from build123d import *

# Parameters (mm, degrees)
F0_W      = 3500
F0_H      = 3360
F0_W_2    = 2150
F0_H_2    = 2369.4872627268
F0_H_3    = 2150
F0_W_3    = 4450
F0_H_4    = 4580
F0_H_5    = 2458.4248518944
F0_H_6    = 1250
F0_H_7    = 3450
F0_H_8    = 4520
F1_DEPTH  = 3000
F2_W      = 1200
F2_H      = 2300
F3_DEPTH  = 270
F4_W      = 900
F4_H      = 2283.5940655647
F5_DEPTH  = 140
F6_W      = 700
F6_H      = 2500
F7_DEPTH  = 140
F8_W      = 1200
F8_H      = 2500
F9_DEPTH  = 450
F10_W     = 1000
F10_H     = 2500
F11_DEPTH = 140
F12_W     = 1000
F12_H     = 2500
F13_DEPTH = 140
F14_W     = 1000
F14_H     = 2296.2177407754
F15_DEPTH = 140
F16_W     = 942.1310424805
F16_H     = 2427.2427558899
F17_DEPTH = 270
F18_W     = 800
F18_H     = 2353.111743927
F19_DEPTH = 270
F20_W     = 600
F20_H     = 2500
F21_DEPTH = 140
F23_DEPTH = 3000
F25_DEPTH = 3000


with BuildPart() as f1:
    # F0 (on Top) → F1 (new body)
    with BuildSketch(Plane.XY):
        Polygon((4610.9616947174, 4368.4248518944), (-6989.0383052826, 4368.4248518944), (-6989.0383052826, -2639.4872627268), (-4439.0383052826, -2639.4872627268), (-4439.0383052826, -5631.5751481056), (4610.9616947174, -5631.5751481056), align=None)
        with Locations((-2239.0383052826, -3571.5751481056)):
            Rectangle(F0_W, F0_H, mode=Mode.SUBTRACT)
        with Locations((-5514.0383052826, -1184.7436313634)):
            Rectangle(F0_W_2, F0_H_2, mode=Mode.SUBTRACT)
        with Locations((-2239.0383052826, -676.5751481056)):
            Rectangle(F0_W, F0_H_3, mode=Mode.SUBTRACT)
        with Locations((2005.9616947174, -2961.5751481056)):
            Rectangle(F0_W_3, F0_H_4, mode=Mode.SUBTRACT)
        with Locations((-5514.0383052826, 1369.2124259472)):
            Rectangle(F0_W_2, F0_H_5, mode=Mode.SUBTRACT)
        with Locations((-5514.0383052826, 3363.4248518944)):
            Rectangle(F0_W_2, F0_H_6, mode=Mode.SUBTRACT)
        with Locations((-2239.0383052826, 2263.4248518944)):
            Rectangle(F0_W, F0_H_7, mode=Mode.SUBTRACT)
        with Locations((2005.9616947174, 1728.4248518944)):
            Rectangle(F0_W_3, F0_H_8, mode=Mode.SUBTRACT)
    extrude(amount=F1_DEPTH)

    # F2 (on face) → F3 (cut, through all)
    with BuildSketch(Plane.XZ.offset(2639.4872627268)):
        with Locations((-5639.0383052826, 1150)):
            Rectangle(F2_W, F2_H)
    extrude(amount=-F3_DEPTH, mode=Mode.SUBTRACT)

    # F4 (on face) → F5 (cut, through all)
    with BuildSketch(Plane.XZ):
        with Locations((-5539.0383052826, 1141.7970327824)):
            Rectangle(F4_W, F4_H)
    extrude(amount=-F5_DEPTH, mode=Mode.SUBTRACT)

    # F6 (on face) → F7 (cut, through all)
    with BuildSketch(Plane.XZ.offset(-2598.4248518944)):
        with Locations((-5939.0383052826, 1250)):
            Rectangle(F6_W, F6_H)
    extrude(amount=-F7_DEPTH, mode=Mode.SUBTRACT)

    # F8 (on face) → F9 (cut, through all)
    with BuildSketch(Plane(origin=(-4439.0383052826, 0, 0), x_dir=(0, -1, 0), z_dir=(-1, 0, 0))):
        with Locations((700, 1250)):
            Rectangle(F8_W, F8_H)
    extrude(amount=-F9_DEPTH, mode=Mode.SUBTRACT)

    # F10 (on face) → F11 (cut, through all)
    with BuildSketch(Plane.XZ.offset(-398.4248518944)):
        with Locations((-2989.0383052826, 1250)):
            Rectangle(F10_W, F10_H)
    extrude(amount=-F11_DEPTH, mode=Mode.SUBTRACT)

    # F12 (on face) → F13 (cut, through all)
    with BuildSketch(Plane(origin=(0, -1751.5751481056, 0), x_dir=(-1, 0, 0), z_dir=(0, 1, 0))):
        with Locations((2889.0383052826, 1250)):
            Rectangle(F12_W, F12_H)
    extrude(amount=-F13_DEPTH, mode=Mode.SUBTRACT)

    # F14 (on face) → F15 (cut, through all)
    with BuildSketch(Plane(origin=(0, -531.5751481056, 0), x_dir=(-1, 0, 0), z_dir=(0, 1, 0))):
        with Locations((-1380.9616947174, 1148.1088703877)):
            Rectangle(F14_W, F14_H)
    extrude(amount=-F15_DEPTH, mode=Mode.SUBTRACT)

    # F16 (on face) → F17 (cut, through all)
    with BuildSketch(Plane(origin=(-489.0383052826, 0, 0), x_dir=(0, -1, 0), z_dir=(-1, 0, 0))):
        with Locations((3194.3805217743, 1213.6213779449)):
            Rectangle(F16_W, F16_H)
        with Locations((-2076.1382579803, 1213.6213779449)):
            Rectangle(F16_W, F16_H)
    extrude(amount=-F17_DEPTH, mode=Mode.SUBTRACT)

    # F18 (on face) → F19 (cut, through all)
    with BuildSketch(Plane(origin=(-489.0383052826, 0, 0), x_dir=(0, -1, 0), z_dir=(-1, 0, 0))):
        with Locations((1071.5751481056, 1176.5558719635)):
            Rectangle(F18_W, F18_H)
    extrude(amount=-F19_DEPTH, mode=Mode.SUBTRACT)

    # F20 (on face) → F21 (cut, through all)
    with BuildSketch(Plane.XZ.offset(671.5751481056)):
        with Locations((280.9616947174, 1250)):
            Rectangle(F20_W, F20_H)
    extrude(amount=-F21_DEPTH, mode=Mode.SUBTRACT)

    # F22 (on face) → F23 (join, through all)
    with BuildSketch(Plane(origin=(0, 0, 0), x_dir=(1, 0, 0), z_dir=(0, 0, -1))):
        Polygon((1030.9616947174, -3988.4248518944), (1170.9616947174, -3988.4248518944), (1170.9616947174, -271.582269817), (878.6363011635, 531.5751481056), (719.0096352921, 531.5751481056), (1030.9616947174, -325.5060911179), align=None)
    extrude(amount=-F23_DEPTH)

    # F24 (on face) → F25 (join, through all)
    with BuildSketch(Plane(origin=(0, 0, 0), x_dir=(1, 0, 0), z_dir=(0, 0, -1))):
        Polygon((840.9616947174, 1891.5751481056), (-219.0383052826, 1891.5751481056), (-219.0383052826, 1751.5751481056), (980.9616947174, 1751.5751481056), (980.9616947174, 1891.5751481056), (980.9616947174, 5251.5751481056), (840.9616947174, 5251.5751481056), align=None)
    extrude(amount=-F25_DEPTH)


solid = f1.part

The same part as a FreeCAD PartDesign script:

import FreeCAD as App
import Part
import Sketcher
from FreeCAD import Vector
Q = App.Units.Quantity

doc = App.newDocument("Part")
body = doc.addObject("PartDesign::Body", "Body")

# Sketch on XY plane
sketch1 = body.newObject("Sketcher::SketchObject", "Sketch")
sketch1.AttachmentSupport = (doc.getObject("XY_Plane"), [""])
sketch1.MapMode = "FlatFace"
sketch1.addGeometry(Part.LineSegment(Vector(4610.961695, 4368.424852, 0), Vector(-6989.038305, 4368.424852, 0)), False)
sketch1.addGeometry(Part.LineSegment(Vector(-6989.038305, 4368.424852, 0), Vector(-6989.038305, -2639.487263, 0)), False)
sketch1.addGeometry(Part.LineSegment(Vector(-6989.038305, -2639.487263, 0), Vector(-4439.038305, -2639.487263, 0)), False)
sketch1.addGeometry(Part.LineSegment(Vector(-4439.038305, -2639.487263, 0), Vector(-4439.038305, -5631.575148, 0)), False)
sketch1.addGeometry(Part.LineSegment(Vector(-4439.038305, -5631.575148, 0), Vector(4610.961695, -5631.575148, 0)), False)
sketch1.addGeometry(Part.LineSegment(Vector(4610.961695, -5631.575148, 0), Vector(4610.961695, 4368.424852, 0)), False)
sketch1.addGeometry(Part.LineSegment(Vector(-489.038305, -5251.575148, 0), Vector(-3989.038305, -5251.575148, 0)), False)
sketch1.addGeometry(Part.LineSegment(Vector(-3989.038305, -5251.575148, 0), Vector(-3989.038305, -1891.575148, 0)), False)
sketch1.addGeometry(Part.LineSegment(Vector(-3989.038305, -1891.575148, 0), Vector(-489.038305, -1891.575148, 0)), False)
sketch1.addGeometry(Part.LineSegment(Vector(-489.038305, -1891.575148, 0), Vector(-489.038305, -5251.575148, 0)), False)
sketch1.addGeometry(Part.LineSegment(Vector(-4439.038305, -2369.487263, 0), Vector(-6589.038305, -2369.487263, 0)), False)
sketch1.addGeometry(Part.LineSegment(Vector(-6589.038305, -2369.487263, 0), Vector(-6589.038305, 0, 0)), False)
sketch1.addGeometry(Part.LineSegment(Vector(-6589.038305, 0, 0), Vector(-4439.038305, 0, 0)), False)
sketch1.addGeometry(Part.LineSegment(Vector(-4439.038305, 0, 0), Vector(-4439.038305, -2369.487263, 0)), False)
sketch1.addGeometry(Part.LineSegment(Vector(-489.038305, -1751.575148, 0), Vector(-3989.038305, -1751.575148, 0)), False)
sketch1.addGeometry(Part.LineSegment(Vector(-3989.038305, -1751.575148, 0), Vector(-3989.038305, 398.424852, 0)), False)
sketch1.addGeometry(Part.LineSegment(Vector(-3989.038305, 398.424852, 0), Vector(-489.038305, 398.424852, 0)), False)
sketch1.addGeometry(Part.LineSegment(Vector(-489.038305, 398.424852, 0), Vector(-489.038305, -1751.575148, 0)), False)
sketch1.addGeometry(Part.LineSegment(Vector(4230.961695, -5251.575148, 0), Vector(-219.038305, -5251.575148, 0)), False)
sketch1.addGeometry(Part.LineSegment(Vector(-219.038305, -5251.575148, 0), Vector(-219.038305, -671.575148, 0)), False)
sketch1.addGeometry(Part.LineSegment(Vector(-219.038305, -671.575148, 0), Vector(4230.961695, -671.575148, 0)), False)
sketch1.addGeometry(Part.LineSegment(Vector(4230.961695, -671.575148, 0), Vector(4230.961695, -5251.575148, 0)), False)
sketch1.addGeometry(Part.LineSegment(Vector(-4439.038305, 140, 0), Vector(-6589.038305, 140, 0)), False)
sketch1.addGeometry(Part.LineSegment(Vector(-6589.038305, 140, 0), Vector(-6589.038305, 2598.424852, 0)), False)
sketch1.addGeometry(Part.LineSegment(Vector(-6589.038305, 2598.424852, 0), Vector(-4439.038305, 2598.424852, 0)), False)
sketch1.addGeometry(Part.LineSegment(Vector(-4439.038305, 2598.424852, 0), Vector(-4439.038305, 140, 0)), False)
sketch1.addGeometry(Part.LineSegment(Vector(-4439.038305, 2738.424852, 0), Vector(-6589.038305, 2738.424852, 0)), False)
sketch1.addGeometry(Part.LineSegment(Vector(-6589.038305, 2738.424852, 0), Vector(-6589.038305, 3988.424852, 0)), False)
sketch1.addGeometry(Part.LineSegment(Vector(-6589.038305, 3988.424852, 0), Vector(-4439.038305, 3988.424852, 0)), False)
sketch1.addGeometry(Part.LineSegment(Vector(-4439.038305, 3988.424852, 0), Vector(-4439.038305, 2738.424852, 0)), False)
sketch1.addGeometry(Part.LineSegment(Vector(-489.038305, 538.424852, 0), Vector(-3989.038305, 538.424852, 0)), False)
sketch1.addGeometry(Part.LineSegment(Vector(-3989.038305, 538.424852, 0), Vector(-3989.038305, 3988.424852, 0)), False)
sketch1.addGeometry(Part.LineSegment(Vector(-3989.038305, 3988.424852, 0), Vector(-489.038305, 3988.424852, 0)), False)
sketch1.addGeometry(Part.LineSegment(Vector(-489.038305, 3988.424852, 0), Vector(-489.038305, 538.424852, 0)), False)
sketch1.addGeometry(Part.LineSegment(Vector(4230.961695, -531.575148, 0), Vector(-219.038305, -531.575148, 0)), False)
sketch1.addGeometry(Part.LineSegment(Vector(-219.038305, -531.575148, 0), Vector(-219.038305, 3988.424852, 0)), False)
sketch1.addGeometry(Part.LineSegment(Vector(-219.038305, 3988.424852, 0), Vector(4230.961695, 3988.424852, 0)), False)
sketch1.addGeometry(Part.LineSegment(Vector(4230.961695, 3988.424852, 0), Vector(4230.961695, -531.575148, 0)), False)
sketch1.addConstraint(Sketcher.Constraint("Coincident", 0, 2, 1, 1))
sketch1.addConstraint(Sketcher.Constraint("Coincident", 1, 2, 2, 1))
sketch1.addConstraint(Sketcher.Constraint("Coincident", 2, 2, 3, 1))
sketch1.addConstraint(Sketcher.Constraint("Coincident", 3, 2, 4, 1))
sketch1.addConstraint(Sketcher.Constraint("Coincident", 4, 2, 5, 1))
sketch1.addConstraint(Sketcher.Constraint("Coincident", 5, 2, 0, 1))
sketch1.addConstraint(Sketcher.Constraint("Coincident", 6, 2, 7, 1))
sketch1.addConstraint(Sketcher.Constraint("Coincident", 7, 2, 8, 1))
sketch1.addConstraint(Sketcher.Constraint("Coincident", 8, 2, 9, 1))
sketch1.addConstraint(Sketcher.Constraint("Coincident", 9, 2, 6, 1))
sketch1.addConstraint(Sketcher.Constraint("Coincident", 10, 2, 11, 1))
sketch1.addConstraint(Sketcher.Constraint("Coincident", 11, 2, 12, 1))
sketch1.addConstraint(Sketcher.Constraint("Coincident", 12, 2, 13, 1))
sketch1.addConstraint(Sketcher.Constraint("Coincident", 13, 2, 10, 1))
sketch1.addConstraint(Sketcher.Constraint("Coincident", 14, 2, 15, 1))
sketch1.addConstraint(Sketcher.Constraint("Coincident", 15, 2, 16, 1))
sketch1.addConstraint(Sketcher.Constraint("Coincident", 16, 2, 17, 1))
sketch1.addConstraint(Sketcher.Constraint("Coincident", 17, 2, 14, 1))
sketch1.addConstraint(Sketcher.Constraint("Coincident", 18, 2, 19, 1))
sketch1.addConstraint(Sketcher.Constraint("Coincident", 19, 2, 20, 1))
sketch1.addConstraint(Sketcher.Constraint("Coincident", 20, 2, 21, 1))
sketch1.addConstraint(Sketcher.Constraint("Coincident", 21, 2, 18, 1))
sketch1.addConstraint(Sketcher.Constraint("Coincident", 22, 2, 23, 1))
sketch1.addConstraint(Sketcher.Constraint("Coincident", 23, 2, 24, 1))
sketch1.addConstraint(Sketcher.Constraint("Coincident", 24, 2, 25, 1))
sketch1.addConstraint(Sketcher.Constraint("Coincident", 25, 2, 22, 1))
sketch1.addConstraint(Sketcher.Constraint("Coincident", 26, 2, 27, 1))
sketch1.addConstraint(Sketcher.Constraint("Coincident", 27, 2, 28, 1))
sketch1.addConstraint(Sketcher.Constraint("Coincident", 28, 2, 29, 1))
sketch1.addConstraint(Sketcher.Constraint("Coincident", 29, 2, 26, 1))
sketch1.addConstraint(Sketcher.Constraint("Coincident", 30, 2, 31, 1))
sketch1.addConstraint(Sketcher.Constraint("Coincident", 31, 2, 32, 1))
sketch1.addConstraint(Sketcher.Constraint("Coincident", 32, 2, 33, 1))
sketch1.addConstraint(Sketcher.Constraint("Coincident", 33, 2, 30, 1))
sketch1.addConstraint(Sketcher.Constraint("Coincident", 34, 2, 35, 1))
sketch1.addConstraint(Sketcher.Constraint("Coincident", 35, 2, 36, 1))
sketch1.addConstraint(Sketcher.Constraint("Coincident", 36, 2, 37, 1))
sketch1.addConstraint(Sketcher.Constraint("Coincident", 37, 2, 34, 1))
sketch1.addConstraint(Sketcher.Constraint("Horizontal", 0))
sketch1.addConstraint(Sketcher.Constraint("Vertical", 1))
sketch1.addConstraint(Sketcher.Constraint("Horizontal", 2))
sketch1.addConstraint(Sketcher.Constraint("Vertical", 3))
sketch1.addConstraint(Sketcher.Constraint("Horizontal", 4))
sketch1.addConstraint(Sketcher.Constraint("Vertical", 5))
sketch1.addConstraint(Sketcher.Constraint("Horizontal", 6))
sketch1.addConstraint(Sketcher.Constraint("Vertical", 7))
sketch1.addConstraint(Sketcher.Constraint("Horizontal", 8))
sketch1.addConstraint(Sketcher.Constraint("Vertical", 9))
sketch1.addConstraint(Sketcher.Constraint("Horizontal", 10))
sketch1.addConstraint(Sketcher.Constraint("Vertical", 11))
sketch1.addConstraint(Sketcher.Constraint("Horizontal", 12))
sketch1.addConstraint(Sketcher.Constraint("Vertical", 13))
sketch1.addConstraint(Sketcher.Constraint("Horizontal", 14))
sketch1.addConstraint(Sketcher.Constraint("Vertical", 15))
sketch1.addConstraint(Sketcher.Constraint("Horizontal", 16))
sketch1.addConstraint(Sketcher.Constraint("Vertical", 17))
sketch1.addConstraint(Sketcher.Constraint("Horizontal", 18))
sketch1.addConstraint(Sketcher.Constraint("Vertical", 19))
sketch1.addConstraint(Sketcher.Constraint("Horizontal", 20))
sketch1.addConstraint(Sketcher.Constraint("Vertical", 21))
sketch1.addConstraint(Sketcher.Constraint("Horizontal", 22))
sketch1.addConstraint(Sketcher.Constraint("Vertical", 23))
sketch1.addConstraint(Sketcher.Constraint("Horizontal", 24))
sketch1.addConstraint(Sketcher.Constraint("Vertical", 25))
sketch1.addConstraint(Sketcher.Constraint("Horizontal", 26))
sketch1.addConstraint(Sketcher.Constraint("Vertical", 27))
sketch1.addConstraint(Sketcher.Constraint("Horizontal", 28))
sketch1.addConstraint(Sketcher.Constraint("Vertical", 29))
sketch1.addConstraint(Sketcher.Constraint("Horizontal", 30))
sketch1.addConstraint(Sketcher.Constraint("Vertical", 31))
sketch1.addConstraint(Sketcher.Constraint("Horizontal", 32))
sketch1.addConstraint(Sketcher.Constraint("Vertical", 33))
sketch1.addConstraint(Sketcher.Constraint("Horizontal", 34))
sketch1.addConstraint(Sketcher.Constraint("Vertical", 35))
sketch1.addConstraint(Sketcher.Constraint("Horizontal", 36))
sketch1.addConstraint(Sketcher.Constraint("Vertical", 37))
sketch1.addConstraint(Sketcher.Constraint("PointOnObject", 11, 2, -1))
sketch1.addConstraint(Sketcher.Constraint("Horizontal", 9, 2, 18, 2))
sketch1.addConstraint(Sketcher.Constraint("Horizontal", 28, 2, 31, 2))
sketch1.addConstraint(Sketcher.Constraint("Horizontal", 32, 2, 35, 2))
sketch1.addConstraint(Sketcher.Constraint("Vertical", 3, 2, 12, 2))
sketch1.addConstraint(Sketcher.Constraint("Vertical", 7, 2, 14, 2))
sketch1.addConstraint(Sketcher.Constraint("Vertical", 9, 2, 16, 2))
sketch1.addConstraint(Sketcher.Constraint("Vertical", 11, 2, 22, 2))
sketch1.addConstraint(Sketcher.Constraint("Vertical", 13, 2, 24, 2))
sketch1.addConstraint(Sketcher.Constraint("Vertical", 23, 2, 26, 2))
sketch1.addConstraint(Sketcher.Constraint("Vertical", 25, 2, 28, 2))
sketch1.addConstraint(Sketcher.Constraint("Vertical", 15, 2, 30, 2))
sketch1.addConstraint(Sketcher.Constraint("Vertical", 17, 2, 32, 2))
sketch1.addConstraint(Sketcher.Constraint("Vertical", 19, 2, 34, 2))
sketch1.addConstraint(Sketcher.Constraint("Vertical", 21, 2, 36, 2))
sketch1.addConstraint(Sketcher.Constraint("Equal", 28, 15))
sketch1.addConstraint(Sketcher.Constraint("DistanceX", 0, 2, 0, 1, 11600.0))
sketch1.addConstraint(Sketcher.Constraint("DistanceX", 2, 1, 2, 2, 2550.0))
sketch1.addConstraint(Sketcher.Constraint("DistanceX", 6, 2, 6, 1, 3500.0))
sketch1.addConstraint(Sketcher.Constraint("DistanceX", 10, 2, 10, 1, 2150.0))
sketch1.addConstraint(Sketcher.Constraint("DistanceX", 18, 2, 18, 1, 4450.0))
sketch1.addConstraint(Sketcher.Constraint("DistanceY", 5, 1, 5, 2, 10000.0))
sketch1.addConstraint(Sketcher.Constraint("DistanceY", 7, 1, 7, 2, 3360.0))
sketch1.addConstraint(Sketcher.Constraint("DistanceY", 19, 1, 19, 2, 4580.0))
sketch1.addConstraint(Sketcher.Constraint("DistanceY", 27, 1, 27, 2, 1250.0))
sketch1.addConstraint(Sketcher.Constraint("DistanceY", 31, 1, 31, 2, 3450.0))
sketch1.addConstraint(Sketcher.Constraint("DistanceY", 35, 1, 35, 2, 4520.0))
sketch1.addConstraint(Sketcher.Constraint("DistanceY", -1, 1, 22, 2, 140.0))
sketch1.addConstraint(Sketcher.Constraint("DistanceX", 3, 2, 6, 2, 450.0))
sketch1.addConstraint(Sketcher.Constraint("DistanceY", 3, 2, 6, 2, 380.0))
sketch1.addConstraint(Sketcher.Constraint("DistanceY", 1, 2, 10, 2, 270.0))
sketch1.addConstraint(Sketcher.Constraint("DistanceY", 7, 2, 14, 2, 140.0))
sketch1.addConstraint(Sketcher.Constraint("DistanceX", 9, 2, 18, 2, 270.0))
sketch1.addConstraint(Sketcher.Constraint("DistanceY", 23, 2, 0, 2, 1770.0))
sketch1.addConstraint(Sketcher.Constraint("DistanceY", 23, 2, 26, 2, 140.0))
sketch1.addConstraint(Sketcher.Constraint("DistanceY", 23, 1, 23, 2, 2458.424852))
sketch1.addConstraint(Sketcher.Constraint("DistanceY", 1, 2, 1, 1, 7007.912115))
sketch1.addConstraint(Sketcher.Constraint("DistanceX", 0, 2, -1, 1, 6989.038305))
pad1 = body.newObject("PartDesign::Pad", "Pad")
pad1.Profile = sketch1
pad1.Length = 3000

# Sketch on XZ plane
sketch2 = body.newObject("Sketcher::SketchObject", "Sketch001")
sketch2.AttachmentSupport = (doc.getObject("XZ_Plane"), [""])
sketch2.MapMode = "FlatFace"
sketch2.AttachmentOffset = App.Placement(Vector(0, 0, 2639.487263), App.Rotation())
sketch2.addGeometry(Part.LineSegment(Vector(-6239.038305, 2300, 0), Vector(-6239.038305, 0, 0)), False)
sketch2.addGeometry(Part.LineSegment(Vector(-6239.038305, 0, 0), Vector(-5039.038305, 0, 0)), False)
sketch2.addGeometry(Part.LineSegment(Vector(-5039.038305, 0, 0), Vector(-5039.038305, 2300, 0)), False)
sketch2.addGeometry(Part.LineSegment(Vector(-5039.038305, 2300, 0), Vector(-6239.038305, 2300, 0)), False)
sketch2.addConstraint(Sketcher.Constraint("Coincident", 0, 2, 1, 1))
sketch2.addConstraint(Sketcher.Constraint("Coincident", 1, 2, 2, 1))
sketch2.addConstraint(Sketcher.Constraint("Coincident", 2, 2, 3, 1))
sketch2.addConstraint(Sketcher.Constraint("Coincident", 3, 2, 0, 1))
sketch2.addConstraint(Sketcher.Constraint("Vertical", 0))
sketch2.addConstraint(Sketcher.Constraint("Horizontal", 1))
sketch2.addConstraint(Sketcher.Constraint("Vertical", 2))
sketch2.addConstraint(Sketcher.Constraint("Horizontal", 3))
sketch2.addConstraint(Sketcher.Constraint("PointOnObject", 0, 2, -1))
sketch2.addConstraint(Sketcher.Constraint("DistanceX", 1, 1, 1, 2, 1200.0))
sketch2.addConstraint(Sketcher.Constraint("DistanceY", 0, 2, 0, 1, 2300.0))
sketch2.addConstraint(Sketcher.Constraint("DistanceX", 0, 2, -1, 1, 6239.038305))
pocket1 = body.newObject("PartDesign::Pocket", "Pocket")
pocket1.Profile = sketch2
pocket1.Length = 270

# Sketch on XZ plane
sketch3 = body.newObject("Sketcher::SketchObject", "Sketch002")
sketch3.AttachmentSupport = (doc.getObject("XZ_Plane"), [""])
sketch3.MapMode = "FlatFace"
sketch3.addGeometry(Part.LineSegment(Vector(-5989.038305, 2283.594066, 0), Vector(-5989.038305, 0, 0)), False)
sketch3.addGeometry(Part.LineSegment(Vector(-5989.038305, 0, 0), Vector(-5089.038305, 0, 0)), False)
sketch3.addGeometry(Part.LineSegment(Vector(-5089.038305, 0, 0), Vector(-5089.038305, 2283.594066, 0)), False)
sketch3.addGeometry(Part.LineSegment(Vector(-5089.038305, 2283.594066, 0), Vector(-5989.038305, 2283.594066, 0)), False)
sketch3.addConstraint(Sketcher.Constraint("Coincident", 0, 2, 1, 1))
sketch3.addConstraint(Sketcher.Constraint("Coincident", 1, 2, 2, 1))
sketch3.addConstraint(Sketcher.Constraint("Coincident", 2, 2, 3, 1))
sketch3.addConstraint(Sketcher.Constraint("Coincident", 3, 2, 0, 1))
sketch3.addConstraint(Sketcher.Constraint("Vertical", 0))
sketch3.addConstraint(Sketcher.Constraint("Horizontal", 1))
sketch3.addConstraint(Sketcher.Constraint("Vertical", 2))
sketch3.addConstraint(Sketcher.Constraint("Horizontal", 3))
sketch3.addConstraint(Sketcher.Constraint("PointOnObject", 0, 2, -1))
sketch3.addConstraint(Sketcher.Constraint("DistanceX", 1, 1, 1, 2, 900.0))
sketch3.addConstraint(Sketcher.Constraint("DistanceY", 0, 2, 0, 1, 2283.594066))
sketch3.addConstraint(Sketcher.Constraint("DistanceX", 0, 2, -1, 1, 5989.038305))
pocket2 = body.newObject("PartDesign::Pocket", "Pocket001")
pocket2.Profile = sketch3
pocket2.Length = 140

# Sketch on XZ plane
sketch4 = body.newObject("Sketcher::SketchObject", "Sketch003")
sketch4.AttachmentSupport = (doc.getObject("XZ_Plane"), [""])
sketch4.MapMode = "FlatFace"
sketch4.AttachmentOffset = App.Placement(Vector(0, 0, -2598.424852), App.Rotation())
sketch4.addGeometry(Part.LineSegment(Vector(-6289.038305, 2500, 0), Vector(-6289.038305, 0, 0)), False)
sketch4.addGeometry(Part.LineSegment(Vector(-6289.038305, 0, 0), Vector(-5589.038305, 0, 0)), False)
sketch4.addGeometry(Part.LineSegment(Vector(-5589.038305, 0, 0), Vector(-5589.038305, 2500, 0)), False)
sketch4.addGeometry(Part.LineSegment(Vector(-5589.038305, 2500, 0), Vector(-6289.038305, 2500, 0)), False)
sketch4.addConstraint(Sketcher.Constraint("Coincident", 0, 2, 1, 1))
sketch4.addConstraint(Sketcher.Constraint("Coincident", 1, 2, 2, 1))
sketch4.addConstraint(Sketcher.Constraint("Coincident", 2, 2, 3, 1))
sketch4.addConstraint(Sketcher.Constraint("Coincident", 3, 2, 0, 1))
sketch4.addConstraint(Sketcher.Constraint("Vertical", 0))
sketch4.addConstraint(Sketcher.Constraint("Horizontal", 1))
sketch4.addConstraint(Sketcher.Constraint("Vertical", 2))
sketch4.addConstraint(Sketcher.Constraint("Horizontal", 3))
sketch4.addConstraint(Sketcher.Constraint("PointOnObject", 0, 2, -1))
sketch4.addConstraint(Sketcher.Constraint("DistanceX", 1, 1, 1, 2, 700.0))
sketch4.addConstraint(Sketcher.Constraint("DistanceY", 0, 2, 0, 1, 2500.0))
sketch4.addConstraint(Sketcher.Constraint("DistanceX", 0, 2, -1, 1, 6289.038305))
pocket3 = body.newObject("PartDesign::Pocket", "Pocket002")
pocket3.Profile = sketch4
pocket3.Length = 140

# Sketch on YZ plane
sketch5 = body.newObject("Sketcher::SketchObject", "Sketch004")
sketch5.AttachmentSupport = (doc.getObject("YZ_Plane"), [""])
sketch5.MapMode = "FlatFace"
sketch5.AttachmentOffset = App.Placement(Vector(0, 0, -4439.038305), App.Rotation())
sketch5.addGeometry(Part.LineSegment(Vector(-100, 2500, 0), Vector(-100, 0, 0)), False)
sketch5.addGeometry(Part.LineSegment(Vector(-100, 0, 0), Vector(-1300, 0, 0)), False)
sketch5.addGeometry(Part.LineSegment(Vector(-1300, 0, 0), Vector(-1300, 2500, 0)), False)
sketch5.addGeometry(Part.LineSegment(Vector(-1300, 2500, 0), Vector(-100, 2500, 0)), False)
sketch5.addConstraint(Sketcher.Constraint("Coincident", 0, 2, 1, 1))
sketch5.addConstraint(Sketcher.Constraint("Coincident", 1, 2, 2, 1))
sketch5.addConstraint(Sketcher.Constraint("Coincident", 2, 2, 3, 1))
sketch5.addConstraint(Sketcher.Constraint("Coincident", 3, 2, 0, 1))
sketch5.addConstraint(Sketcher.Constraint("Vertical", 0))
sketch5.addConstraint(Sketcher.Constraint("Horizontal", 1))
sketch5.addConstraint(Sketcher.Constraint("Vertical", 2))
sketch5.addConstraint(Sketcher.Constraint("Horizontal", 3))
sketch5.addConstraint(Sketcher.Constraint("PointOnObject", 0, 2, -1))
sketch5.addConstraint(Sketcher.Constraint("DistanceX", 1, 2, 1, 1, 1200.0))
sketch5.addConstraint(Sketcher.Constraint("DistanceY", 0, 2, 0, 1, 2500.0))
sketch5.addConstraint(Sketcher.Constraint("DistanceX", 0, 2, -1, 1, 100.0))
pocket4 = body.newObject("PartDesign::Pocket", "Pocket003")
pocket4.Profile = sketch5
pocket4.Length = 450
pocket4.Reversed = True

# Sketch on XZ plane
sketch6 = body.newObject("Sketcher::SketchObject", "Sketch005")
sketch6.AttachmentSupport = (doc.getObject("XZ_Plane"), [""])
sketch6.MapMode = "FlatFace"
sketch6.AttachmentOffset = App.Placement(Vector(0, 0, -398.424852), App.Rotation())
sketch6.addGeometry(Part.LineSegment(Vector(-3489.038305, 2500, 0), Vector(-3489.038305, 0, 0)), False)
sketch6.addGeometry(Part.LineSegment(Vector(-3489.038305, 0, 0), Vector(-2489.038305, 0, 0)), False)
sketch6.addGeometry(Part.LineSegment(Vector(-2489.038305, 0, 0), Vector(-2489.038305, 2500, 0)), False)
sketch6.addGeometry(Part.LineSegment(Vector(-2489.038305, 2500, 0), Vector(-3489.038305, 2500, 0)), False)
sketch6.addConstraint(Sketcher.Constraint("Coincident", 0, 2, 1, 1))
sketch6.addConstraint(Sketcher.Constraint("Coincident", 1, 2, 2, 1))
sketch6.addConstraint(Sketcher.Constraint("Coincident", 2, 2, 3, 1))
sketch6.addConstraint(Sketcher.Constraint("Coincident", 3, 2, 0, 1))
sketch6.addConstraint(Sketcher.Constraint("Vertical", 0))
sketch6.addConstraint(Sketcher.Constraint("Horizontal", 1))
sketch6.addConstraint(Sketcher.Constraint("Vertical", 2))
sketch6.addConstraint(Sketcher.Constraint("Horizontal", 3))
sketch6.addConstraint(Sketcher.Constraint("PointOnObject", 0, 2, -1))
sketch6.addConstraint(Sketcher.Constraint("DistanceX", 1, 1, 1, 2, 1000.0))
sketch6.addConstraint(Sketcher.Constraint("DistanceY", 0, 2, 0, 1, 2500.0))
sketch6.addConstraint(Sketcher.Constraint("DistanceX", 0, 2, -1, 1, 3489.038305))
pocket5 = body.newObject("PartDesign::Pocket", "Pocket004")
pocket5.Profile = sketch6
pocket5.Length = 140

# Sketch on XZ plane
sketch7 = body.newObject("Sketcher::SketchObject", "Sketch006")
sketch7.AttachmentSupport = (doc.getObject("XZ_Plane"), [""])
sketch7.MapMode = "FlatFace"
sketch7.AttachmentOffset = App.Placement(Vector(0, 0, 1751.575148), App.Rotation())
sketch7.addGeometry(Part.LineSegment(Vector(-2389.038305, 2500, 0), Vector(-2389.038305, 0, 0)), False)
sketch7.addGeometry(Part.LineSegment(Vector(-2389.038305, 0, 0), Vector(-3389.038305, 0, 0)), False)
sketch7.addGeometry(Part.LineSegment(Vector(-3389.038305, 0, 0), Vector(-3389.038305, 2500, 0)), False)
sketch7.addGeometry(Part.LineSegment(Vector(-3389.038305, 2500, 0), Vector(-2389.038305, 2500, 0)), False)
sketch7.addConstraint(Sketcher.Constraint("Coincident", 0, 2, 1, 1))
sketch7.addConstraint(Sketcher.Constraint("Coincident", 1, 2, 2, 1))
sketch7.addConstraint(Sketcher.Constraint("Coincident", 2, 2, 3, 1))
sketch7.addConstraint(Sketcher.Constraint("Coincident", 3, 2, 0, 1))
sketch7.addConstraint(Sketcher.Constraint("Vertical", 0))
sketch7.addConstraint(Sketcher.Constraint("Horizontal", 1))
sketch7.addConstraint(Sketcher.Constraint("Vertical", 2))
sketch7.addConstraint(Sketcher.Constraint("Horizontal", 3))
sketch7.addConstraint(Sketcher.Constraint("PointOnObject", 0, 2, -1))
sketch7.addConstraint(Sketcher.Constraint("DistanceX", 1, 2, 1, 1, 1000.0))
sketch7.addConstraint(Sketcher.Constraint("DistanceY", 0, 2, 0, 1, 2500.0))
sketch7.addConstraint(Sketcher.Constraint("DistanceX", 0, 2, -1, 1, 2389.038305))
pocket6 = body.newObject("PartDesign::Pocket", "Pocket005")
pocket6.Profile = sketch7
pocket6.Length = 140
pocket6.Reversed = True

# Sketch on XZ plane
sketch8 = body.newObject("Sketcher::SketchObject", "Sketch007")
sketch8.AttachmentSupport = (doc.getObject("XZ_Plane"), [""])
sketch8.MapMode = "FlatFace"
sketch8.AttachmentOffset = App.Placement(Vector(0, 0, 531.575148), App.Rotation())
sketch8.addGeometry(Part.LineSegment(Vector(1880.961695, 2296.217741, 0), Vector(1880.961695, 0, 0)), False)
sketch8.addGeometry(Part.LineSegment(Vector(1880.961695, 0, 0), Vector(880.961695, 0, 0)), False)
sketch8.addGeometry(Part.LineSegment(Vector(880.961695, 0, 0), Vector(880.961695, 2296.217741, 0)), False)
sketch8.addGeometry(Part.LineSegment(Vector(880.961695, 2296.217741, 0), Vector(1880.961695, 2296.217741, 0)), False)
sketch8.addConstraint(Sketcher.Constraint("Coincident", 0, 2, 1, 1))
sketch8.addConstraint(Sketcher.Constraint("Coincident", 1, 2, 2, 1))
sketch8.addConstraint(Sketcher.Constraint("Coincident", 2, 2, 3, 1))
sketch8.addConstraint(Sketcher.Constraint("Coincident", 3, 2, 0, 1))
sketch8.addConstraint(Sketcher.Constraint("Vertical", 0))
sketch8.addConstraint(Sketcher.Constraint("Horizontal", 1))
sketch8.addConstraint(Sketcher.Constraint("Vertical", 2))
sketch8.addConstraint(Sketcher.Constraint("Horizontal", 3))
sketch8.addConstraint(Sketcher.Constraint("PointOnObject", 0, 2, -1))
sketch8.addConstraint(Sketcher.Constraint("DistanceX", 1, 2, 1, 1, 1000.0))
sketch8.addConstraint(Sketcher.Constraint("DistanceY", 0, 2, 0, 1, 2296.217741))
sketch8.addConstraint(Sketcher.Constraint("DistanceX", -1, 1, 0, 2, 1880.961695))
pocket7 = body.newObject("PartDesign::Pocket", "Pocket006")
pocket7.Profile = sketch8
pocket7.Length = 140
pocket7.Reversed = True

# Sketch on YZ plane
sketch9 = body.newObject("Sketcher::SketchObject", "Sketch008")
sketch9.AttachmentSupport = (doc.getObject("YZ_Plane"), [""])
sketch9.MapMode = "FlatFace"
sketch9.AttachmentOffset = App.Placement(Vector(0, 0, -489.038305), App.Rotation())
sketch9.addGeometry(Part.LineSegment(Vector(-2723.315001, 2427.242756, 0), Vector(-2723.315001, 0, 0)), False)
sketch9.addGeometry(Part.LineSegment(Vector(-2723.315001, 0, 0), Vector(-3665.446043, 0, 0)), False)
sketch9.addGeometry(Part.LineSegment(Vector(-3665.446043, 0, 0), Vector(-3665.446043, 2427.242756, 0)), False)
sketch9.addGeometry(Part.LineSegment(Vector(-3665.446043, 2427.242756, 0), Vector(-2723.315001, 2427.242756, 0)), False)
sketch9.addGeometry(Part.LineSegment(Vector(2547.203779, 2427.242756, 0), Vector(2547.203779, 0, 0)), False)
sketch9.addGeometry(Part.LineSegment(Vector(2547.203779, 0, 0), Vector(1605.072737, 0, 0)), False)
sketch9.addGeometry(Part.LineSegment(Vector(1605.072737, 0, 0), Vector(1605.072737, 2427.242756, 0)), False)
sketch9.addGeometry(Part.LineSegment(Vector(1605.072737, 2427.242756, 0), Vector(2547.203779, 2427.242756, 0)), False)
sketch9.addConstraint(Sketcher.Constraint("Coincident", 0, 2, 1, 1))
sketch9.addConstraint(Sketcher.Constraint("Coincident", 1, 2, 2, 1))
sketch9.addConstraint(Sketcher.Constraint("Coincident", 2, 2, 3, 1))
sketch9.addConstraint(Sketcher.Constraint("Coincident", 3, 2, 0, 1))
sketch9.addConstraint(Sketcher.Constraint("Coincident", 4, 2, 5, 1))
sketch9.addConstraint(Sketcher.Constraint("Coincident", 5, 2, 6, 1))
sketch9.addConstraint(Sketcher.Constraint("Coincident", 6, 2, 7, 1))
sketch9.addConstraint(Sketcher.Constraint("Coincident", 7, 2, 4, 1))
sketch9.addConstraint(Sketcher.Constraint("Vertical", 0))
sketch9.addConstraint(Sketcher.Constraint("Horizontal", 1))
sketch9.addConstraint(Sketcher.Constraint("Vertical", 2))
sketch9.addConstraint(Sketcher.Constraint("Horizontal", 3))
sketch9.addConstraint(Sketcher.Constraint("Vertical", 4))
sketch9.addConstraint(Sketcher.Constraint("Horizontal", 5))
sketch9.addConstraint(Sketcher.Constraint("Vertical", 6))
sketch9.addConstraint(Sketcher.Constraint("Horizontal", 7))
sketch9.addConstraint(Sketcher.Constraint("PointOnObject", 0, 2, -1))
sketch9.addConstraint(Sketcher.Constraint("PointOnObject", 4, 2, -1))
sketch9.addConstraint(Sketcher.Constraint("Horizontal", 3, 2, 6, 2))
sketch9.addConstraint(Sketcher.Constraint("Equal", 3, 5))
sketch9.addConstraint(Sketcher.Constraint("DistanceX", 0, 2, -1, 1, 2723.315001))
sketch9.addConstraint(Sketcher.Constraint("DistanceX", 1, 2, 1, 1, 942.131042))
sketch9.addConstraint(Sketcher.Constraint("DistanceY", 0, 2, 0, 1, 2427.242756))
sketch9.addConstraint(Sketcher.Constraint("DistanceX", -1, 1, 4, 2, 2547.203779))
pocket8 = body.newObject("PartDesign::Pocket", "Pocket007")
pocket8.Profile = sketch9
pocket8.Length = 270
pocket8.Reversed = True

# Sketch on YZ plane
sketch10 = body.newObject("Sketcher::SketchObject", "Sketch009")
sketch10.AttachmentSupport = (doc.getObject("YZ_Plane"), [""])
sketch10.MapMode = "FlatFace"
sketch10.AttachmentOffset = App.Placement(Vector(0, 0, -489.038305), App.Rotation())
sketch10.addGeometry(Part.LineSegment(Vector(-671.575148, 2353.111744, 0), Vector(-671.575148, 0, 0)), False)
sketch10.addGeometry(Part.LineSegment(Vector(-671.575148, 0, 0), Vector(-1471.575148, 0, 0)), False)
sketch10.addGeometry(Part.LineSegment(Vector(-1471.575148, 0, 0), Vector(-1471.575148, 2353.111744, 0)), False)
sketch10.addGeometry(Part.LineSegment(Vector(-1471.575148, 2353.111744, 0), Vector(-671.575148, 2353.111744, 0)), False)
sketch10.addConstraint(Sketcher.Constraint("Coincident", 0, 2, 1, 1))
sketch10.addConstraint(Sketcher.Constraint("Coincident", 1, 2, 2, 1))
sketch10.addConstraint(Sketcher.Constraint("Coincident", 2, 2, 3, 1))
sketch10.addConstraint(Sketcher.Constraint("Coincident", 3, 2, 0, 1))
sketch10.addConstraint(Sketcher.Constraint("Vertical", 0))
sketch10.addConstraint(Sketcher.Constraint("Horizontal", 1))
sketch10.addConstraint(Sketcher.Constraint("Vertical", 2))
sketch10.addConstraint(Sketcher.Constraint("Horizontal", 3))
sketch10.addConstraint(Sketcher.Constraint("PointOnObject", 0, 2, -1))
sketch10.addConstraint(Sketcher.Constraint("DistanceX", 1, 2, 1, 1, 800.0))
sketch10.addConstraint(Sketcher.Constraint("DistanceY", 0, 2, 0, 1, 2353.111744))
sketch10.addConstraint(Sketcher.Constraint("DistanceX", 0, 2, -1, 1, 671.575148))
pocket9 = body.newObject("PartDesign::Pocket", "Pocket008")
pocket9.Profile = sketch10
pocket9.Length = 270
pocket9.Reversed = True

# Sketch on XZ plane
sketch11 = body.newObject("Sketcher::SketchObject", "Sketch010")
sketch11.AttachmentSupport = (doc.getObject("XZ_Plane"), [""])
sketch11.MapMode = "FlatFace"
sketch11.AttachmentOffset = App.Placement(Vector(0, 0, 671.575148), App.Rotation())
sketch11.addGeometry(Part.LineSegment(Vector(-19.038305, 2500, 0), Vector(-19.038305, 0, 0)), False)
sketch11.addGeometry(Part.LineSegment(Vector(-19.038305, 0, 0), Vector(580.961695, 0, 0)), False)
sketch11.addGeometry(Part.LineSegment(Vector(580.961695, 0, 0), Vector(580.961695, 2500, 0)), False)
sketch11.addGeometry(Part.LineSegment(Vector(580.961695, 2500, 0), Vector(-19.038305, 2500, 0)), False)
sketch11.addConstraint(Sketcher.Constraint("Coincident", 0, 2, 1, 1))
sketch11.addConstraint(Sketcher.Constraint("Coincident", 1, 2, 2, 1))
sketch11.addConstraint(Sketcher.Constraint("Coincident", 2, 2, 3, 1))
sketch11.addConstraint(Sketcher.Constraint("Coincident", 3, 2, 0, 1))
sketch11.addConstraint(Sketcher.Constraint("Vertical", 0))
sketch11.addConstraint(Sketcher.Constraint("Horizontal", 1))
sketch11.addConstraint(Sketcher.Constraint("Vertical", 2))
sketch11.addConstraint(Sketcher.Constraint("Horizontal", 3))
sketch11.addConstraint(Sketcher.Constraint("PointOnObject", 0, 2, -1))
sketch11.addConstraint(Sketcher.Constraint("DistanceX", 1, 1, 1, 2, 600.0))
sketch11.addConstraint(Sketcher.Constraint("DistanceY", 0, 2, 0, 1, 2500.0))
sketch11.addConstraint(Sketcher.Constraint("DistanceX", 0, 2, -1, 1, 19.038305))
pocket10 = body.newObject("PartDesign::Pocket", "Pocket009")
pocket10.Profile = sketch11
pocket10.Length = 140

# Sketch on XY plane
sketch12 = body.newObject("Sketcher::SketchObject", "Sketch011")
sketch12.AttachmentSupport = (doc.getObject("XY_Plane"), [""])
sketch12.MapMode = "FlatFace"
sketch12.addGeometry(Part.LineSegment(Vector(1030.961695, 3988.424852, 0), Vector(1170.961695, 3988.424852, 0)), False)
sketch12.addGeometry(Part.LineSegment(Vector(1170.961695, 3988.424852, 0), Vector(1170.961695, 271.58227, 0)), False)
sketch12.addGeometry(Part.LineSegment(Vector(1170.961695, 271.58227, 0), Vector(878.636301, -531.575148, 0)), False)
sketch12.addGeometry(Part.LineSegment(Vector(878.636301, -531.575148, 0), Vector(719.009635, -531.575148, 0)), False)
sketch12.addGeometry(Part.LineSegment(Vector(719.009635, -531.575148, 0), Vector(1030.961695, 325.506091, 0)), False)
sketch12.addGeometry(Part.LineSegment(Vector(1030.961695, 325.506091, 0), Vector(1030.961695, 3988.424852, 0)), False)
sketch12.addConstraint(Sketcher.Constraint("Coincident", 0, 2, 1, 1))
sketch12.addConstraint(Sketcher.Constraint("Coincident", 1, 2, 2, 1))
sketch12.addConstraint(Sketcher.Constraint("Coincident", 2, 2, 3, 1))
sketch12.addConstraint(Sketcher.Constraint("Coincident", 3, 2, 4, 1))
sketch12.addConstraint(Sketcher.Constraint("Coincident", 4, 2, 5, 1))
sketch12.addConstraint(Sketcher.Constraint("Coincident", 5, 2, 0, 1))
sketch12.addConstraint(Sketcher.Constraint("Horizontal", 0))
sketch12.addConstraint(Sketcher.Constraint("Vertical", 1))
sketch12.addConstraint(Sketcher.Constraint("Horizontal", 3))
sketch12.addConstraint(Sketcher.Constraint("Vertical", 5))
sketch12.addConstraint(Sketcher.Constraint("Parallel", 2, 4))
sketch12.addConstraint(Sketcher.Constraint("DistanceX", 0, 1, 0, 2, 140.0))
sketch12.addConstraint(Sketcher.Constraint("Angle", 2, Q("-110 deg")))
sketch12.addConstraint(Sketcher.Constraint("DistanceY", 2, 2, 0, 2, 4520.0))
sketch12.addConstraint(Sketcher.Constraint("DistanceY", 5, 1, 5, 2, 3662.918761))
sketch12.addConstraint(Sketcher.Constraint("DistanceX", -1, 1, 2, 2, 878.636301))
sketch12.addConstraint(Sketcher.Constraint("Distance", 2, 854.702272))
sketch12.addConstraint(Sketcher.Constraint("DistanceY", -1, 1, 0, 2, 3988.424852))
pad2 = body.newObject("PartDesign::Pad", "Pad001")
pad2.Profile = sketch12
pad2.Length = 3000

# Sketch on XY plane
sketch13 = body.newObject("Sketcher::SketchObject", "Sketch012")
sketch13.AttachmentSupport = (doc.getObject("XY_Plane"), [""])
sketch13.MapMode = "FlatFace"
sketch13.addGeometry(Part.LineSegment(Vector(840.961695, -1891.575148, 0), Vector(-219.038305, -1891.575148, 0)), False)
sketch13.addGeometry(Part.LineSegment(Vector(-219.038305, -1891.575148, 0), Vector(-219.038305, -1751.575148, 0)), False)
sketch13.addGeometry(Part.LineSegment(Vector(-219.038305, -1751.575148, 0), Vector(980.961695, -1751.575148, 0)), False)
sketch13.addGeometry(Part.LineSegment(Vector(980.961695, -1751.575148, 0), Vector(980.961695, -5251.575148, 0)), False)
sketch13.addGeometry(Part.LineSegment(Vector(980.961695, -5251.575148, 0), Vector(840.961695, -5251.575148, 0)), False)
sketch13.addGeometry(Part.LineSegment(Vector(840.961695, -5251.575148, 0), Vector(840.961695, -1891.575148, 0)), False)
sketch13.addConstraint(Sketcher.Constraint("Coincident", 0, 2, 1, 1))
sketch13.addConstraint(Sketcher.Constraint("Coincident", 1, 2, 2, 1))
sketch13.addConstraint(Sketcher.Constraint("Coincident", 2, 2, 3, 1))
sketch13.addConstraint(Sketcher.Constraint("Coincident", 3, 2, 4, 1))
sketch13.addConstraint(Sketcher.Constraint("Coincident", 4, 2, 5, 1))
sketch13.addConstraint(Sketcher.Constraint("Coincident", 5, 2, 0, 1))
sketch13.addConstraint(Sketcher.Constraint("Horizontal", 0))
sketch13.addConstraint(Sketcher.Constraint("Vertical", 1))
sketch13.addConstraint(Sketcher.Constraint("Horizontal", 2))
sketch13.addConstraint(Sketcher.Constraint("Vertical", 3))
sketch13.addConstraint(Sketcher.Constraint("Horizontal", 4))
sketch13.addConstraint(Sketcher.Constraint("Vertical", 5))
sketch13.addConstraint(Sketcher.Constraint("Equal", 4, 1))
sketch13.addConstraint(Sketcher.Constraint("DistanceX", 0, 2, 0, 1, 1060.0))
sketch13.addConstraint(Sketcher.Constraint("DistanceX", 2, 1, 2, 2, 1200.0))
sketch13.addConstraint(Sketcher.Constraint("DistanceY", 3, 2, 3, 1, 3500.0))
sketch13.addConstraint(Sketcher.Constraint("DistanceY", 0, 2, -1, 1, 1891.575148))
sketch13.addConstraint(Sketcher.Constraint("DistanceX", 0, 2, -1, 1, 219.038305))
pad3 = body.newObject("PartDesign::Pad", "Pad002")
pad3.Profile = sketch13
pad3.Length = 3000

doc.recompute()
